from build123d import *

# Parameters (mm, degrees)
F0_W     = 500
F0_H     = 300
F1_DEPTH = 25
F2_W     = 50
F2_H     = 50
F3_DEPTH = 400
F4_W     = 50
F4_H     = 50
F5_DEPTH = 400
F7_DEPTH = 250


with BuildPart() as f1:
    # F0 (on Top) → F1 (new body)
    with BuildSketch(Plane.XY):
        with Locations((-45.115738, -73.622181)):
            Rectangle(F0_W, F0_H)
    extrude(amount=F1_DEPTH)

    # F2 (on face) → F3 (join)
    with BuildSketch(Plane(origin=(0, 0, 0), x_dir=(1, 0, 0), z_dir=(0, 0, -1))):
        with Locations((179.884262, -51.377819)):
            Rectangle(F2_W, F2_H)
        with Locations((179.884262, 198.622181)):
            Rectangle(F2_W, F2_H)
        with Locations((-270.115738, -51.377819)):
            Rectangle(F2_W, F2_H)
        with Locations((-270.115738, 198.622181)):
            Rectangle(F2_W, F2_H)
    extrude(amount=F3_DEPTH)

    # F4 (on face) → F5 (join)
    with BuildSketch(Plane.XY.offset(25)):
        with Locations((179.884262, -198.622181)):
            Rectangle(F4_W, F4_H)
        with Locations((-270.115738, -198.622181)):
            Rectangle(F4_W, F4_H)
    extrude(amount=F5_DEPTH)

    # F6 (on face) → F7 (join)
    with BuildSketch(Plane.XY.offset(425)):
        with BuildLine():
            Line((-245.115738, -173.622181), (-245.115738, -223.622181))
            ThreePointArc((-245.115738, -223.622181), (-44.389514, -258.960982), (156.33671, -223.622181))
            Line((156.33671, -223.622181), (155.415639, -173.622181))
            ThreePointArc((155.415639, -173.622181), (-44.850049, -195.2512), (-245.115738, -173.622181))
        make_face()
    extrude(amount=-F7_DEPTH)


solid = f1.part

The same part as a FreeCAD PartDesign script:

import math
import FreeCAD as App
import Part
import Sketcher
from FreeCAD import Vector
Q = App.Units.Quantity

doc = App.newDocument("Part")
body = doc.addObject("PartDesign::Body", "Body")

# Sketch on XY plane
sketch1 = body.newObject("Sketcher::SketchObject", "Sketch")
sketch1.AttachmentSupport = (doc.getObject("XY_Plane"), [""])
sketch1.MapMode = "FlatFace"
sketch1.addGeometry(Part.LineSegment(Vector(-295.115738, 76.377819, 0), Vector(-295.115738, -223.622181, 0)), False)
sketch1.addGeometry(Part.LineSegment(Vector(-295.115738, -223.622181, 0), Vector(204.884262, -223.622181, 0)), False)
sketch1.addGeometry(Part.LineSegment(Vector(204.884262, -223.622181, 0), Vector(204.884262, 76.377819, 0)), False)
sketch1.addGeometry(Part.LineSegment(Vector(204.884262, 76.377819, 0), Vector(-295.115738, 76.377819, 0)), False)
sketch1.addConstraint(Sketcher.Constraint("Coincident", 0, 2, 1, 1))
sketch1.addConstraint(Sketcher.Constraint("Coincident", 1, 2, 2, 1))
sketch1.addConstraint(Sketcher.Constraint("Coincident", 2, 2, 3, 1))
sketch1.addConstraint(Sketcher.Constraint("Coincident", 3, 2, 0, 1))
sketch1.addConstraint(Sketcher.Constraint("Vertical", 0))
sketch1.addConstraint(Sketcher.Constraint("Horizontal", 1))
sketch1.addConstraint(Sketcher.Constraint("Vertical", 2))
sketch1.addConstraint(Sketcher.Constraint("Horizontal", 3))
sketch1.addConstraint(Sketcher.Constraint("DistanceX", 1, 1, 1, 2, Q("500 mm")))
sketch1.addConstraint(Sketcher.Constraint("DistanceY", 0, 2, 0, 1, Q("300 mm")))
sketch1.addConstraint(Sketcher.Constraint("DistanceX", 0, 2, -1, 1, Q("295.115738 mm")))
sketch1.addConstraint(Sketcher.Constraint("DistanceY", 0, 2, -1, 1, Q("223.622181 mm")))
pad1 = body.newObject("PartDesign::Pad", "Pad")
pad1.Profile = sketch1
pad1.Length = 25

# Sketch on XY plane
sketch2 = body.newObject("Sketcher::SketchObject", "Sketch001")
sketch2.AttachmentSupport = (doc.getObject("XY_Plane"), [""])
sketch2.MapMode = "FlatFace"
sketch2.addGeometry(Part.LineSegment(Vector(154.884262, 26.377819, 0), Vector(154.884262, 76.377819, 0)), False)
sketch2.addGeometry(Part.LineSegment(Vector(154.884262, 76.377819, 0), Vector(204.884262, 76.377819, 0)), False)
sketch2.addGeometry(Part.LineSegment(Vector(204.884262, 76.377819, 0), Vector(204.884262, 26.377819, 0)), False)
sketch2.addGeometry(Part.LineSegment(Vector(204.884262, 26.377819, 0), Vector(154.884262, 26.377819, 0)), False)
sketch2.addGeometry(Part.LineSegment(Vector(154.884262, -223.622181, 0), Vector(154.884262, -173.622181, 0)), False)
sketch2.addGeometry(Part.LineSegment(Vector(154.884262, -173.622181, 0), Vector(204.884262, -173.622181, 0)), False)
sketch2.addGeometry(Part.LineSegment(Vector(204.884262, -173.622181, 0), Vector(204.884262, -223.622181, 0)), False)
sketch2.addGeometry(Part.LineSegment(Vector(204.884262, -223.622181, 0), Vector(154.884262, -223.622181, 0)), False)
sketch2.addGeometry(Part.LineSegment(Vector(-295.115738, 26.377819, 0), Vector(-295.115738, 76.377819, 0)), False)
sketch2.addGeometry(Part.LineSegment(Vector(-295.115738, 76.377819, 0), Vector(-245.115738, 76.377819, 0)), False)
sketch2.addGeometry(Part.LineSegment(Vector(-245.115738, 76.377819, 0), Vector(-245.115738, 26.377819, 0)), False)
sketch2.addGeometry(Part.LineSegment(Vector(-245.115738, 26.377819, 0), Vector(-295.115738, 26.377819, 0)), False)
sketch2.addGeometry(Part.LineSegment(Vector(-295.115738, -223.622181, 0), Vector(-295.115738, -173.622181, 0)), False)
sketch2.addGeometry(Part.LineSegment(Vector(-295.115738, -173.622181, 0), Vector(-245.115738, -173.622181, 0)), False)
sketch2.addGeometry(Part.LineSegment(Vector(-245.115738, -173.622181, 0), Vector(-245.115738, -223.622181, 0)), False)
sketch2.addGeometry(Part.LineSegment(Vector(-245.115738, -223.622181, 0), Vector(-295.115738, -223.622181, 0)), False)
sketch2.addConstraint(Sketcher.Constraint("Coincident", 0, 2, 1, 1))
sketch2.addConstraint(Sketcher.Constraint("Coincident", 1, 2, 2, 1))
sketch2.addConstraint(Sketcher.Constraint("Coincident", 2, 2, 3, 1))
sketch2.addConstraint(Sketcher.Constraint("Coincident", 3, 2, 0, 1))
sketch2.addConstraint(Sketcher.Constraint("Coincident", 4, 2, 5, 1))
sketch2.addConstraint(Sketcher.Constraint("Coincident", 5, 2, 6, 1))
sketch2.addConstraint(Sketcher.Constraint("Coincident", 6, 2, 7, 1))
sketch2.addConstraint(Sketcher.Constraint("Coincident", 7, 2, 4, 1))
sketch2.addConstraint(Sketcher.Constraint("Coincident", 8, 2, 9, 1))
sketch2.addConstraint(Sketcher.Constraint("Coincident", 9, 2, 10, 1))
sketch2.addConstraint(Sketcher.Constraint("Coincident", 10, 2, 11, 1))
sketch2.addConstraint(Sketcher.Constraint("Coincident", 11, 2, 8, 1))
sketch2.addConstraint(Sketcher.Constraint("Coincident", 12, 2, 13, 1))
sketch2.addConstraint(Sketcher.Constraint("Coincident", 13, 2, 14, 1))
sketch2.addConstraint(Sketcher.Constraint("Coincident", 14, 2, 15, 1))
sketch2.addConstraint(Sketcher.Constraint("Coincident", 15, 2, 12, 1))
sketch2.addConstraint(Sketcher.Constraint("Vertical", 0))
sketch2.addConstraint(Sketcher.Constraint("Horizontal", 1))
sketch2.addConstraint(Sketcher.Constraint("Vertical", 2))
sketch2.addConstraint(Sketcher.Constraint("Horizontal", 3))
sketch2.addConstraint(Sketcher.Constraint("Vertical", 4))
sketch2.addConstraint(Sketcher.Constraint("Horizontal", 5))
sketch2.addConstraint(Sketcher.Constraint("Vertical", 6))
sketch2.addConstraint(Sketcher.Constraint("Horizontal", 7))
sketch2.addConstraint(Sketcher.Constraint("Vertical", 8))
sketch2.addConstraint(Sketcher.Constraint("Horizontal", 9))
sketch2.addConstraint(Sketcher.Constraint("Vertical", 10))
sketch2.addConstraint(Sketcher.Constraint("Horizontal", 11))
sketch2.addConstraint(Sketcher.Constraint("Vertical", 12))
sketch2.addConstraint(Sketcher.Constraint("Horizontal", 13))
sketch2.addConstraint(Sketcher.Constraint("Vertical", 14))
sketch2.addConstraint(Sketcher.Constraint("Horizontal", 15))
sketch2.addConstraint(Sketcher.Constraint("Horizontal", 1, 2, 8, 2))
sketch2.addConstraint(Sketcher.Constraint("Horizontal", 3, 2, 10, 2))
sketch2.addConstraint(Sketcher.Constraint("Horizontal", 5, 2, 12, 2))
sketch2.addConstraint(Sketcher.Constraint("Horizontal", 7, 2, 14, 2))
sketch2.addConstraint(Sketcher.Constraint("Vertical", 3, 2, 4, 2))
sketch2.addConstraint(Sketcher.Constraint("Vertical", 2, 2, 5, 2))
sketch2.addConstraint(Sketcher.Constraint("Vertical", 11, 2, 12, 2))
sketch2.addConstraint(Sketcher.Constraint("Vertical", 10, 2, 13, 2))
sketch2.addConstraint(Sketcher.Constraint("Equal", 7, 9))
sketch2.addConstraint(Sketcher.Constraint("Equal", 15, 0))
sketch2.addConstraint(Sketcher.Constraint("Equal", 2, 4))
sketch2.addConstraint(Sketcher.Constraint("DistanceX", 1, 1, 1, 2, Q("50 mm")))
sketch2.addConstraint(Sketcher.Constraint("DistanceY", 4, 2, 3, 2, Q("200 mm")))
sketch2.addConstraint(Sketcher.Constraint("DistanceX", 8, 2, 0, 2, Q("450 mm")))
sketch2.addConstraint(Sketcher.Constraint("DistanceX", -1, 1, 0, 2, Q("154.884262 mm")))
sketch2.addConstraint(Sketcher.Constraint("DistanceY", -1, 1, 0, 2, Q("76.377819 mm")))
pad2 = body.newObject("PartDesign::Pad", "Pad001")
pad2.Profile = sketch2
pad2.Length = 400
pad2.Reversed = True

# Sketch on XY plane
sketch3 = body.newObject("Sketcher::SketchObject", "Sketch002")
sketch3.AttachmentSupport = (doc.getObject("XY_Plane"), [""])
sketch3.MapMode = "FlatFace"
sketch3.AttachmentOffset = App.Placement(Vector(0, 0, 25), App.Rotation())
sketch3.addGeometry(Part.LineSegment(Vector(154.884262, -173.622181, 0), Vector(154.884262, -223.622181, 0)), False)
sketch3.addGeometry(Part.LineSegment(Vector(154.884262, -223.622181, 0), Vector(204.884262, -223.622181, 0)), False)
sketch3.addGeometry(Part.LineSegment(Vector(204.884262, -223.622181, 0), Vector(204.884262, -173.622181, 0)), False)
sketch3.addGeometry(Part.LineSegment(Vector(204.884262, -173.622181, 0), Vector(154.884262, -173.622181, 0)), False)
sketch3.addGeometry(Part.LineSegment(Vector(-295.115738, -173.622181, 0), Vector(-295.115738, -223.622181, 0)), False)
sketch3.addGeometry(Part.LineSegment(Vector(-295.115738, -223.622181, 0), Vector(-245.115738, -223.622181, 0)), False)
sketch3.addGeometry(Part.LineSegment(Vector(-245.115738, -223.622181, 0), Vector(-245.115738, -173.622181, 0)), False)
sketch3.addGeometry(Part.LineSegment(Vector(-245.115738, -173.622181, 0), Vector(-295.115738, -173.622181, 0)), False)
sketch3.addConstraint(Sketcher.Constraint("Coincident", 0, 2, 1, 1))
sketch3.addConstraint(Sketcher.Constraint("Coincident", 1, 2, 2, 1))
sketch3.addConstraint(Sketcher.Constraint("Coincident", 2, 2, 3, 1))
sketch3.addConstraint(Sketcher.Constraint("Coincident", 3, 2, 0, 1))
sketch3.addConstraint(Sketcher.Constraint("Coincident", 4, 2, 5, 1))
sketch3.addConstraint(Sketcher.Constraint("Coincident", 5, 2, 6, 1))
sketch3.addConstraint(Sketcher.Constraint("Coincident", 6, 2, 7, 1))
sketch3.addConstraint(Sketcher.Constraint("Coincident", 7, 2, 4, 1))
sketch3.addConstraint(Sketcher.Constraint("Vertical", 0))
sketch3.addConstraint(Sketcher.Constraint("Horizontal", 1))
sketch3.addConstraint(Sketcher.Constraint("Vertical", 2))
sketch3.addConstraint(Sketcher.Constraint("Horizontal", 3))
sketch3.addConstraint(Sketcher.Constraint("Vertical", 4))
sketch3.addConstraint(Sketcher.Constraint("Horizontal", 5))
sketch3.addConstraint(Sketcher.Constraint("Vertical", 6))
sketch3.addConstraint(Sketcher.Constraint("Horizontal", 7))
sketch3.addConstraint(Sketcher.Constraint("Horizontal", 1, 2, 4, 2))
sketch3.addConstraint(Sketcher.Constraint("Horizontal", 3, 2, 6, 2))
sketch3.addConstraint(Sketcher.Constraint("Equal", 3, 5))
sketch3.addConstraint(Sketcher.Constraint("Equal", 7, 0))
sketch3.addConstraint(Sketcher.Constraint("DistanceX", 1, 1, 1, 2, Q("50 mm")))
sketch3.addConstraint(Sketcher.Constraint("DistanceX", 4, 2, 0, 2, Q("450 mm")))
sketch3.addConstraint(Sketcher.Constraint("DistanceX", -1, 1, 0, 2, Q("154.884262 mm")))
sketch3.addConstraint(Sketcher.Constraint("DistanceY", 0, 2, -1, 1, Q("223.622181 mm")))
pad3 = body.newObject("PartDesign::Pad", "Pad002")
pad3.Profile = sketch3
pad3.Length = 400

# Sketch on XY plane
sketch4 = body.newObject("Sketcher::SketchObject", "Sketch003")
sketch4.AttachmentSupport = (doc.getObject("XY_Plane"), [""])
sketch4.MapMode = "FlatFace"
sketch4.AttachmentOffset = App.Placement(Vector(0, 0, 425), App.Rotation())
sketch4.addGeometry(Part.LineSegment(Vector(-245.115738, -173.622181, 0), Vector(-245.115738, -223.622181, 0)), False)
sketch4.addGeometry(Part.ArcOfCircle(Part.Circle(Vector(-44.389514, 328.776104, 0), Vector(0, 0, 1), 587.737086), math.radians(-109.969742), math.radians(-70.030258)), False)
sketch4.addGeometry(Part.LineSegment(Vector(156.33671, -223.622181, 0), Vector(155.415639, -173.622181, 0)), False)
sketch4.addGeometry(Part.ArcOfCircle(Part.Circle(Vector(-44.850049, 742.705359, 0), Vector(0, 0, 1), 937.956559), math.radians(-102.328289), math.radians(-77.671711)), False)
sketch4.addConstraint(Sketcher.Constraint("Coincident", 0, 2, 1, 1))
sketch4.addConstraint(Sketcher.Constraint("Coincident", 1, 2, 2, 1))
sketch4.addConstraint(Sketcher.Constraint("Coincident", 2, 2, 3, 2))
sketch4.addConstraint(Sketcher.Constraint("Coincident", 3, 1, 0, 1))
sketch4.addConstraint(Sketcher.Constraint("Vertical", 0))
sketch4.addConstraint(Sketcher.Constraint("Horizontal", 0, 2, 1, 2))
sketch4.addConstraint(Sketcher.Constraint("Horizontal", 2, 2, 3, 1))
sketch4.addConstraint(Sketcher.Constraint("DistanceY", 0, 2, 0, 1, Q("50 mm")))
sketch4.addConstraint(Sketcher.Constraint("Radius", 3, Q("937.956559 mm")))
sketch4.addConstraint(Sketcher.Constraint("Radius", 1, Q("587.737086 mm")))
sketch4.addConstraint(Sketcher.Constraint("DistanceX", 3, 3, -1, 1, Q("44.850049 mm")))
sketch4.addConstraint(Sketcher.Constraint("DistanceY", -1, 1, 3, 3, Q("742.705359 mm")))
sketch4.addConstraint(Sketcher.Constraint("DistanceX", 0, 2, -1, 1, Q("245.115738 mm")))
sketch4.addConstraint(Sketcher.Constraint("Distance", 2, Q("50.008483 mm")))
pad4 = body.newObject("PartDesign::Pad", "Pad003")
pad4.Profile = sketch4
pad4.Length = 250
pad4.Reversed = True

doc.recompute()
